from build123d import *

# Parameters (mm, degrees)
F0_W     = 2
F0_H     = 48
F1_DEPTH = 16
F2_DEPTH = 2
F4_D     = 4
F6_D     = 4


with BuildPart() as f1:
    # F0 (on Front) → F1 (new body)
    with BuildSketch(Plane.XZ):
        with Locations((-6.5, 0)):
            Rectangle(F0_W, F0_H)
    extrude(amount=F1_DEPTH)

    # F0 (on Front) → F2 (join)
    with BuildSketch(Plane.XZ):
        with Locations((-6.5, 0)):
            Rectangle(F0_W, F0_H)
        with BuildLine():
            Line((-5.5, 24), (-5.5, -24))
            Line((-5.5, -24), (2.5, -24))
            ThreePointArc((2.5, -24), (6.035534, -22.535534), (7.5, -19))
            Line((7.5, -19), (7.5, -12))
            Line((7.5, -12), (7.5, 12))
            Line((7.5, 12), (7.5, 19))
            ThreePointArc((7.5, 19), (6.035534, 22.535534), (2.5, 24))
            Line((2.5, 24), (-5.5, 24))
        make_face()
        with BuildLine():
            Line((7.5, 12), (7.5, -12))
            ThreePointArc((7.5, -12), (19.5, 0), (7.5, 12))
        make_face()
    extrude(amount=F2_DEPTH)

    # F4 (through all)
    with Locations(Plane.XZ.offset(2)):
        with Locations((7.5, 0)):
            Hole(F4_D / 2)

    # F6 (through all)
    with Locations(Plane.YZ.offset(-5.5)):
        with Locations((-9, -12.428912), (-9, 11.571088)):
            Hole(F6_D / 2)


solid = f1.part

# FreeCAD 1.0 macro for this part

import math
import FreeCAD as App
import Part
import Sketcher

V = App.Vector
Q = App.Units.Quantity

doc = App.newDocument("Part")
body = doc.addObject("PartDesign::Body", "Body")

sketch1 = body.newObject("Sketcher::SketchObject", "Sketch")
sketch1.AttachmentSupport = (doc.getObject("XZ_Plane"), [""])
sketch1.MapMode = "FlatFace"
sketch1.addGeometry([
    Part.LineSegment(V(-7.5, 24, 0), V(-7.5, -24, 0)),
    Part.LineSegment(V(-7.5, -24, 0), V(-5.5, -24, 0)),
    Part.LineSegment(V(-5.5, -24, 0), V(-5.5, 24, 0)),
    Part.LineSegment(V(-5.5, 24, 0), V(-7.5, 24, 0)),
], False)
sketch1.addConstraint([
    Sketcher.Constraint("Coincident", 0, 2, 1, 1),
    Sketcher.Constraint("Coincident", 1, 2, 2, 1),
    Sketcher.Constraint("Coincident", 2, 2, 3, 1),
    Sketcher.Constraint("Coincident", 3, 2, 0, 1),
    Sketcher.Constraint("Vertical", 0),
    Sketcher.Constraint("Horizontal", 1),
    Sketcher.Constraint("Vertical", 2),
    Sketcher.Constraint("Horizontal", 3),
    Sketcher.Constraint("DistanceX", 1, 1, 1, 2, Q("2 mm")),
    Sketcher.Constraint("DistanceY", 0, 2, 0, 1, Q("48 mm")),
    Sketcher.Constraint("DistanceY", 0, 2, -1, 1, Q("24 mm")),
    Sketcher.Constraint("DistanceX", 0, 2, -1, 1, Q("7.5 mm")),
])
pad1 = body.newObject("PartDesign::Pad", "Pad")
pad1.Profile = sketch1
pad1.Length = 16

sketch2 = body.newObject("Sketcher::SketchObject", "Sketch001")
sketch2.AttachmentSupport = (doc.getObject("XZ_Plane"), [""])
sketch2.MapMode = "FlatFace"
sketch2.addGeometry([
    Part.LineSegment(V(-7.5, 24, 0), V(-7.5, -24, 0)),
    Part.LineSegment(V(-7.5, -24, 0), V(2.5, -24, 0)),
    Part.ArcOfCircle(Part.Circle(V(2.5, -19, 0), V(0, 0, 1), 5), math.radians(-90), math.radians(0)),
    Part.LineSegment(V(7.5, -19, 0), V(7.5, -12, 0)),
    Part.ArcOfCircle(Part.Circle(V(7.5, 0, 0), V(0, 0, 1), 12), math.radians(-90), math.radians(90)),
    Part.LineSegment(V(7.5, 12, 0), V(7.5, 19, 0)),
    Part.ArcOfCircle(Part.Circle(V(2.5, 19, 0), V(0, 0, 1), 5), math.radians(0), math.radians(90)),
    Part.LineSegment(V(2.5, 24, 0), V(-7.5, 24, 0)),
], False)
sketch2.addConstraint([
    Sketcher.Constraint("Coincident", 0, 2, 1, 1),
    Sketcher.Constraint("Tangent", 1, 2, 2, 1),
    Sketcher.Constraint("Tangent", 2, 2, 3, 1),
    Sketcher.Constraint("Coincident", 3, 2, 4, 1),
    Sketcher.Constraint("Coincident", 4, 2, 5, 1),
    Sketcher.Constraint("Tangent", 5, 2, 6, 1),
    Sketcher.Constraint("Tangent", 6, 2, 7, 1),
    Sketcher.Constraint("Coincident", 7, 2, 0, 1),
    Sketcher.Constraint("Vertical", 0),
    Sketcher.Constraint("Horizontal", 1),
    Sketcher.Constraint("Vertical", 3),
    Sketcher.Constraint("Vertical", 5),
    Sketcher.Constraint("Horizontal", 7),
    Sketcher.Constraint("Equal", 2, 6),
    Sketcher.Constraint("Symmetric", 2, 3, 6, 3, -1),
    Sketcher.Constraint("PointOnObject", 4, 3, -1),
    Sketcher.Constraint("Vertical", 4, 3, 2, 2),
    Sketcher.Constraint("Radius", 2, Q("5 mm")),
    Sketcher.Constraint("Radius", 4, Q("12 mm")),
    Sketcher.Constraint("DistanceX", 1, 1, 1, 2, Q("10 mm")),
    Sketcher.Constraint("DistanceY", 0, 2, 0, 1, Q("48 mm")),
    Sketcher.Constraint("DistanceX", -1, 1, 2, 3, Q("2.5 mm")),
])
pad2 = body.newObject("PartDesign::Pad", "Pad001")
pad2.Profile = sketch2
pad2.Length = 2

sketch3 = body.newObject("Sketcher::SketchObject", "Sketch002")
sketch3.AttachmentSupport = (doc.getObject("XZ_Plane"), [""])
sketch3.MapMode = "FlatFace"
sketch3.AttachmentOffset = App.Placement(V(0, 0, 2), App.Rotation())
sketch3.addGeometry(Part.Circle(V(7.5, 0, 0), V(0, 0, 1), 2), False)
sketch3.addConstraint([
    Sketcher.Constraint("PointOnObject", 0, 3, -1),
    Sketcher.Constraint("Diameter", 0, Q("4 mm")),
    Sketcher.Constraint("DistanceX", -1, 1, 0, 3, Q("7.5 mm")),
])
doc.recompute()
hole = body.newObject("PartDesign::Hole", "Hole")
hole.Profile = sketch3
hole.ThreadType = "None"
hole.Diameter = 4
hole.DepthType = "ThroughAll"

sketch4 = body.newObject("Sketcher::SketchObject", "Sketch003")
sketch4.AttachmentSupport = (doc.getObject("YZ_Plane"), [""])
sketch4.MapMode = "FlatFace"
sketch4.AttachmentOffset = App.Placement(V(0, 0, -5.5), App.Rotation())
sketch4.addGeometry([
    Part.Circle(V(-9, -12.4, 0), V(0, 0, 1), 2),
    Part.Circle(V(-9, 11.6, 0), V(0, 0, 1), 2),
], False)
sketch4.addConstraint([
    Sketcher.Constraint("Equal", 0, 1),
    Sketcher.Constraint("Vertical", 0, 3, 1, 3),
    Sketcher.Constraint("Diameter", 0, Q("4 mm")),
    Sketcher.Constraint("DistanceX", 0, 3, -1, 1, Q("9 mm")),
    Sketcher.Constraint("DistanceY", 0, 3, 1, 3, Q("24 mm")),
    Sketcher.Constraint("DistanceY", 0, 3, -1, 1, Q("12.428912 mm")),
])
doc.recompute()
hole2 = body.newObject("PartDesign::Hole", "Hole001")
hole2.Profile = sketch4
hole2.ThreadType = "None"
hole2.Diameter = 4
hole2.DepthType = "ThroughAll"

doc.recompute()
